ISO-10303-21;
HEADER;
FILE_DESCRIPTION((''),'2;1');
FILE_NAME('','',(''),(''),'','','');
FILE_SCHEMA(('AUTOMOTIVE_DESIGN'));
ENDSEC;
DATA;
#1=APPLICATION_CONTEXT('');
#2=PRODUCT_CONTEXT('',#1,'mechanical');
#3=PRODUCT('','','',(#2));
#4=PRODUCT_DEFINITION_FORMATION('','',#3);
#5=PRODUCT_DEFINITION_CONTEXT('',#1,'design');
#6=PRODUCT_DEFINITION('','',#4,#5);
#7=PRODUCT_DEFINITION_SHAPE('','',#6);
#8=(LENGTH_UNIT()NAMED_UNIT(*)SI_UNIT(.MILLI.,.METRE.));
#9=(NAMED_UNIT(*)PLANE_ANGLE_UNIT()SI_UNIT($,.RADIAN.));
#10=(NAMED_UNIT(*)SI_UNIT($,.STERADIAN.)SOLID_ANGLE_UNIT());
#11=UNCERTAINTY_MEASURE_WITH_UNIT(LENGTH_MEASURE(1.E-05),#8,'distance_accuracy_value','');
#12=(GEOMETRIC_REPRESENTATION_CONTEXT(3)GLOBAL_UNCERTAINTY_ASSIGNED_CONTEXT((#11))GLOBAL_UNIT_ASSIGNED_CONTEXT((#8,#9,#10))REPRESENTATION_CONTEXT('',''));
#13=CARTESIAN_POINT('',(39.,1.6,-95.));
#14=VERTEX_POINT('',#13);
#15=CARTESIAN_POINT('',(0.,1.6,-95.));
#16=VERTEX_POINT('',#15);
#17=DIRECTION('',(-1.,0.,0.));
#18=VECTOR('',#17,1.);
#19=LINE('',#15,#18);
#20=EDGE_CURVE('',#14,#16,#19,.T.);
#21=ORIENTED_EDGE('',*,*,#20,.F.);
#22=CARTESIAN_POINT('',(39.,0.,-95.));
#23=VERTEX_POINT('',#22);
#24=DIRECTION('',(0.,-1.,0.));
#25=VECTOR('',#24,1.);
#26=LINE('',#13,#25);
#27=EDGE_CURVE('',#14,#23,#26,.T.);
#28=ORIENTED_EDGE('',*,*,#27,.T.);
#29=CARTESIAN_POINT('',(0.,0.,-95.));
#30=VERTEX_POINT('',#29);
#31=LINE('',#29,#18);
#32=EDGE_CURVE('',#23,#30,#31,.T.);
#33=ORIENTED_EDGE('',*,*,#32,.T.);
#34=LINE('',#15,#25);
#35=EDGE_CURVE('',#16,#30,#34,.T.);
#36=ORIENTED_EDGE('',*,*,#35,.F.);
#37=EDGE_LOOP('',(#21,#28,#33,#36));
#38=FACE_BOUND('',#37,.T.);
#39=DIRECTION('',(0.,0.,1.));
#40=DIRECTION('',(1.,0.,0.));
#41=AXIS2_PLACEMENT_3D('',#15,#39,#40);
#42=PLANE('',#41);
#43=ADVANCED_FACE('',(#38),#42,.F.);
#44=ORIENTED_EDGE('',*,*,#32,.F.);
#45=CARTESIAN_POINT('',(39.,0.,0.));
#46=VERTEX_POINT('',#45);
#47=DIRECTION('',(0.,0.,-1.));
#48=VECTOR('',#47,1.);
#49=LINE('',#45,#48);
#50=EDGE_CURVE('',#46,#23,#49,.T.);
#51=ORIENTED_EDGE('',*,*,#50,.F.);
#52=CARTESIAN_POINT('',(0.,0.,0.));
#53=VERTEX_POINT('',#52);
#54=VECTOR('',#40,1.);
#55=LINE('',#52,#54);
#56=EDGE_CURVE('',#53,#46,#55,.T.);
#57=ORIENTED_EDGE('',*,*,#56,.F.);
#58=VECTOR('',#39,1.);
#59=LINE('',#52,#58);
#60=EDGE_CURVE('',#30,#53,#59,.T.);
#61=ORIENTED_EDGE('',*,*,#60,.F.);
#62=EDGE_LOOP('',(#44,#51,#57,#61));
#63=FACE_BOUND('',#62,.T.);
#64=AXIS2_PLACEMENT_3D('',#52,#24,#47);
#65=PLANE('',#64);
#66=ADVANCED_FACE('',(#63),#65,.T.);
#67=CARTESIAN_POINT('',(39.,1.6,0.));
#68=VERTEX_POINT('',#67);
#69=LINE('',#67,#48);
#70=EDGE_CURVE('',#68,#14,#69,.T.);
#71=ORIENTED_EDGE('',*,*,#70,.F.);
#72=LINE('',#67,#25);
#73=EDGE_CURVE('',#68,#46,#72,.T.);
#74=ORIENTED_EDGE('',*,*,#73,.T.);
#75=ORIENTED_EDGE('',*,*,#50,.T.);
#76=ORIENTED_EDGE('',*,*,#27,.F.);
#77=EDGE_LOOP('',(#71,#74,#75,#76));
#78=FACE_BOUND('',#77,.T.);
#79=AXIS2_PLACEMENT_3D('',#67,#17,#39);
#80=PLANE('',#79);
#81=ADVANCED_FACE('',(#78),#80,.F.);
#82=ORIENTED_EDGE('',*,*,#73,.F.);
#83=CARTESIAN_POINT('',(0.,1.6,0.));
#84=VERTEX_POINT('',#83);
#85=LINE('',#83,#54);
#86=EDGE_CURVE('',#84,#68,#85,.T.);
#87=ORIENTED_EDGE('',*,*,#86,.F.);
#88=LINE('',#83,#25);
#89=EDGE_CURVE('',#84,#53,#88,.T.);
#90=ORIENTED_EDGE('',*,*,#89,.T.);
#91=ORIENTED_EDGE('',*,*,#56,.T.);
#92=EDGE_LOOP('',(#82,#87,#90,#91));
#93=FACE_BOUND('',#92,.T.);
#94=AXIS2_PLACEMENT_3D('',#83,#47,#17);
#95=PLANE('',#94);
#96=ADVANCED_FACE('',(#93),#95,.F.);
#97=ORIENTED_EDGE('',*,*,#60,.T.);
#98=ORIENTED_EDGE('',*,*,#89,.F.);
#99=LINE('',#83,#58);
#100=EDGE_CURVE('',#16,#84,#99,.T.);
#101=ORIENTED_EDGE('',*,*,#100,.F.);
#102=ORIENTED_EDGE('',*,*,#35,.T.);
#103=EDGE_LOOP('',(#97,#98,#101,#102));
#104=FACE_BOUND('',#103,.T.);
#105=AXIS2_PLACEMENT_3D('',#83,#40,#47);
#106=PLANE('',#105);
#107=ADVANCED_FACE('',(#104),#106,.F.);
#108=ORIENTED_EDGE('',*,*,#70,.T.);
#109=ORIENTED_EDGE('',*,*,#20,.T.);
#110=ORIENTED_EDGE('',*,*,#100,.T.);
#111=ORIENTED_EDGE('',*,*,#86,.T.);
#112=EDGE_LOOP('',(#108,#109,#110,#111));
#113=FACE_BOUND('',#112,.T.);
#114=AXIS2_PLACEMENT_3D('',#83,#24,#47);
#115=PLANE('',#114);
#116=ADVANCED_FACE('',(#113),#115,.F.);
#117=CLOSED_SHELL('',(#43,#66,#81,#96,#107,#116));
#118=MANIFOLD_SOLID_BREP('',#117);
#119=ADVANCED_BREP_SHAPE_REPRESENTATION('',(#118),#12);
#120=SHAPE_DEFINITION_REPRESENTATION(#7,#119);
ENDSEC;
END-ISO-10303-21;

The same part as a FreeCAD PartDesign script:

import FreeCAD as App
import Part
import Sketcher
Q = App.Units.Quantity

doc = App.newDocument("Part")
body = doc.addObject("PartDesign::Body", "Body")

sketch1 = body.newObject("Sketcher::SketchObject", "Sketch")
sketch1.AttachmentSupport = (doc.getObject("XZ_Plane"), [""])
sketch1.MapMode = "FlatFace"
sketch1.addGeometry(Part.LineSegment(App.Vector(0, -95, 0), App.Vector(0, 0, 0)), False)
sketch1.addGeometry(Part.LineSegment(App.Vector(0, 0, 0), App.Vector(39, 0, 0)), False)
sketch1.addGeometry(Part.LineSegment(App.Vector(39, 0, 0), App.Vector(39, -95, 0)), False)
sketch1.addGeometry(Part.LineSegment(App.Vector(39, -95, 0), App.Vector(0, -95, 0)), False)
sketch1.addConstraint(Sketcher.Constraint("Coincident", 0, 2, 1, 1))
sketch1.addConstraint(Sketcher.Constraint("Coincident", 1, 2, 2, 1))
sketch1.addConstraint(Sketcher.Constraint("Coincident", 2, 2, 3, 1))
sketch1.addConstraint(Sketcher.Constraint("Coincident", 3, 2, 0, 1))
sketch1.addConstraint(Sketcher.Constraint("Vertical", 0))
sketch1.addConstraint(Sketcher.Constraint("Horizontal", 1))
sketch1.addConstraint(Sketcher.Constraint("Vertical", 2))
sketch1.addConstraint(Sketcher.Constraint("Horizontal", 3))
sketch1.addConstraint(Sketcher.Constraint("Coincident", 0, 2, -1, 1))
sketch1.addConstraint(Sketcher.Constraint("DistanceX", 1, 1, 1, 2, Q("39 mm")))
sketch1.addConstraint(Sketcher.Constraint("DistanceY", 0, 1, 0, 2, Q("95 mm")))
pad1 = body.newObject("PartDesign::Pad", "Pad")
pad1.Profile = sketch1
pad1.Length = 1.6
pad1.Reversed = True

doc.recompute()
